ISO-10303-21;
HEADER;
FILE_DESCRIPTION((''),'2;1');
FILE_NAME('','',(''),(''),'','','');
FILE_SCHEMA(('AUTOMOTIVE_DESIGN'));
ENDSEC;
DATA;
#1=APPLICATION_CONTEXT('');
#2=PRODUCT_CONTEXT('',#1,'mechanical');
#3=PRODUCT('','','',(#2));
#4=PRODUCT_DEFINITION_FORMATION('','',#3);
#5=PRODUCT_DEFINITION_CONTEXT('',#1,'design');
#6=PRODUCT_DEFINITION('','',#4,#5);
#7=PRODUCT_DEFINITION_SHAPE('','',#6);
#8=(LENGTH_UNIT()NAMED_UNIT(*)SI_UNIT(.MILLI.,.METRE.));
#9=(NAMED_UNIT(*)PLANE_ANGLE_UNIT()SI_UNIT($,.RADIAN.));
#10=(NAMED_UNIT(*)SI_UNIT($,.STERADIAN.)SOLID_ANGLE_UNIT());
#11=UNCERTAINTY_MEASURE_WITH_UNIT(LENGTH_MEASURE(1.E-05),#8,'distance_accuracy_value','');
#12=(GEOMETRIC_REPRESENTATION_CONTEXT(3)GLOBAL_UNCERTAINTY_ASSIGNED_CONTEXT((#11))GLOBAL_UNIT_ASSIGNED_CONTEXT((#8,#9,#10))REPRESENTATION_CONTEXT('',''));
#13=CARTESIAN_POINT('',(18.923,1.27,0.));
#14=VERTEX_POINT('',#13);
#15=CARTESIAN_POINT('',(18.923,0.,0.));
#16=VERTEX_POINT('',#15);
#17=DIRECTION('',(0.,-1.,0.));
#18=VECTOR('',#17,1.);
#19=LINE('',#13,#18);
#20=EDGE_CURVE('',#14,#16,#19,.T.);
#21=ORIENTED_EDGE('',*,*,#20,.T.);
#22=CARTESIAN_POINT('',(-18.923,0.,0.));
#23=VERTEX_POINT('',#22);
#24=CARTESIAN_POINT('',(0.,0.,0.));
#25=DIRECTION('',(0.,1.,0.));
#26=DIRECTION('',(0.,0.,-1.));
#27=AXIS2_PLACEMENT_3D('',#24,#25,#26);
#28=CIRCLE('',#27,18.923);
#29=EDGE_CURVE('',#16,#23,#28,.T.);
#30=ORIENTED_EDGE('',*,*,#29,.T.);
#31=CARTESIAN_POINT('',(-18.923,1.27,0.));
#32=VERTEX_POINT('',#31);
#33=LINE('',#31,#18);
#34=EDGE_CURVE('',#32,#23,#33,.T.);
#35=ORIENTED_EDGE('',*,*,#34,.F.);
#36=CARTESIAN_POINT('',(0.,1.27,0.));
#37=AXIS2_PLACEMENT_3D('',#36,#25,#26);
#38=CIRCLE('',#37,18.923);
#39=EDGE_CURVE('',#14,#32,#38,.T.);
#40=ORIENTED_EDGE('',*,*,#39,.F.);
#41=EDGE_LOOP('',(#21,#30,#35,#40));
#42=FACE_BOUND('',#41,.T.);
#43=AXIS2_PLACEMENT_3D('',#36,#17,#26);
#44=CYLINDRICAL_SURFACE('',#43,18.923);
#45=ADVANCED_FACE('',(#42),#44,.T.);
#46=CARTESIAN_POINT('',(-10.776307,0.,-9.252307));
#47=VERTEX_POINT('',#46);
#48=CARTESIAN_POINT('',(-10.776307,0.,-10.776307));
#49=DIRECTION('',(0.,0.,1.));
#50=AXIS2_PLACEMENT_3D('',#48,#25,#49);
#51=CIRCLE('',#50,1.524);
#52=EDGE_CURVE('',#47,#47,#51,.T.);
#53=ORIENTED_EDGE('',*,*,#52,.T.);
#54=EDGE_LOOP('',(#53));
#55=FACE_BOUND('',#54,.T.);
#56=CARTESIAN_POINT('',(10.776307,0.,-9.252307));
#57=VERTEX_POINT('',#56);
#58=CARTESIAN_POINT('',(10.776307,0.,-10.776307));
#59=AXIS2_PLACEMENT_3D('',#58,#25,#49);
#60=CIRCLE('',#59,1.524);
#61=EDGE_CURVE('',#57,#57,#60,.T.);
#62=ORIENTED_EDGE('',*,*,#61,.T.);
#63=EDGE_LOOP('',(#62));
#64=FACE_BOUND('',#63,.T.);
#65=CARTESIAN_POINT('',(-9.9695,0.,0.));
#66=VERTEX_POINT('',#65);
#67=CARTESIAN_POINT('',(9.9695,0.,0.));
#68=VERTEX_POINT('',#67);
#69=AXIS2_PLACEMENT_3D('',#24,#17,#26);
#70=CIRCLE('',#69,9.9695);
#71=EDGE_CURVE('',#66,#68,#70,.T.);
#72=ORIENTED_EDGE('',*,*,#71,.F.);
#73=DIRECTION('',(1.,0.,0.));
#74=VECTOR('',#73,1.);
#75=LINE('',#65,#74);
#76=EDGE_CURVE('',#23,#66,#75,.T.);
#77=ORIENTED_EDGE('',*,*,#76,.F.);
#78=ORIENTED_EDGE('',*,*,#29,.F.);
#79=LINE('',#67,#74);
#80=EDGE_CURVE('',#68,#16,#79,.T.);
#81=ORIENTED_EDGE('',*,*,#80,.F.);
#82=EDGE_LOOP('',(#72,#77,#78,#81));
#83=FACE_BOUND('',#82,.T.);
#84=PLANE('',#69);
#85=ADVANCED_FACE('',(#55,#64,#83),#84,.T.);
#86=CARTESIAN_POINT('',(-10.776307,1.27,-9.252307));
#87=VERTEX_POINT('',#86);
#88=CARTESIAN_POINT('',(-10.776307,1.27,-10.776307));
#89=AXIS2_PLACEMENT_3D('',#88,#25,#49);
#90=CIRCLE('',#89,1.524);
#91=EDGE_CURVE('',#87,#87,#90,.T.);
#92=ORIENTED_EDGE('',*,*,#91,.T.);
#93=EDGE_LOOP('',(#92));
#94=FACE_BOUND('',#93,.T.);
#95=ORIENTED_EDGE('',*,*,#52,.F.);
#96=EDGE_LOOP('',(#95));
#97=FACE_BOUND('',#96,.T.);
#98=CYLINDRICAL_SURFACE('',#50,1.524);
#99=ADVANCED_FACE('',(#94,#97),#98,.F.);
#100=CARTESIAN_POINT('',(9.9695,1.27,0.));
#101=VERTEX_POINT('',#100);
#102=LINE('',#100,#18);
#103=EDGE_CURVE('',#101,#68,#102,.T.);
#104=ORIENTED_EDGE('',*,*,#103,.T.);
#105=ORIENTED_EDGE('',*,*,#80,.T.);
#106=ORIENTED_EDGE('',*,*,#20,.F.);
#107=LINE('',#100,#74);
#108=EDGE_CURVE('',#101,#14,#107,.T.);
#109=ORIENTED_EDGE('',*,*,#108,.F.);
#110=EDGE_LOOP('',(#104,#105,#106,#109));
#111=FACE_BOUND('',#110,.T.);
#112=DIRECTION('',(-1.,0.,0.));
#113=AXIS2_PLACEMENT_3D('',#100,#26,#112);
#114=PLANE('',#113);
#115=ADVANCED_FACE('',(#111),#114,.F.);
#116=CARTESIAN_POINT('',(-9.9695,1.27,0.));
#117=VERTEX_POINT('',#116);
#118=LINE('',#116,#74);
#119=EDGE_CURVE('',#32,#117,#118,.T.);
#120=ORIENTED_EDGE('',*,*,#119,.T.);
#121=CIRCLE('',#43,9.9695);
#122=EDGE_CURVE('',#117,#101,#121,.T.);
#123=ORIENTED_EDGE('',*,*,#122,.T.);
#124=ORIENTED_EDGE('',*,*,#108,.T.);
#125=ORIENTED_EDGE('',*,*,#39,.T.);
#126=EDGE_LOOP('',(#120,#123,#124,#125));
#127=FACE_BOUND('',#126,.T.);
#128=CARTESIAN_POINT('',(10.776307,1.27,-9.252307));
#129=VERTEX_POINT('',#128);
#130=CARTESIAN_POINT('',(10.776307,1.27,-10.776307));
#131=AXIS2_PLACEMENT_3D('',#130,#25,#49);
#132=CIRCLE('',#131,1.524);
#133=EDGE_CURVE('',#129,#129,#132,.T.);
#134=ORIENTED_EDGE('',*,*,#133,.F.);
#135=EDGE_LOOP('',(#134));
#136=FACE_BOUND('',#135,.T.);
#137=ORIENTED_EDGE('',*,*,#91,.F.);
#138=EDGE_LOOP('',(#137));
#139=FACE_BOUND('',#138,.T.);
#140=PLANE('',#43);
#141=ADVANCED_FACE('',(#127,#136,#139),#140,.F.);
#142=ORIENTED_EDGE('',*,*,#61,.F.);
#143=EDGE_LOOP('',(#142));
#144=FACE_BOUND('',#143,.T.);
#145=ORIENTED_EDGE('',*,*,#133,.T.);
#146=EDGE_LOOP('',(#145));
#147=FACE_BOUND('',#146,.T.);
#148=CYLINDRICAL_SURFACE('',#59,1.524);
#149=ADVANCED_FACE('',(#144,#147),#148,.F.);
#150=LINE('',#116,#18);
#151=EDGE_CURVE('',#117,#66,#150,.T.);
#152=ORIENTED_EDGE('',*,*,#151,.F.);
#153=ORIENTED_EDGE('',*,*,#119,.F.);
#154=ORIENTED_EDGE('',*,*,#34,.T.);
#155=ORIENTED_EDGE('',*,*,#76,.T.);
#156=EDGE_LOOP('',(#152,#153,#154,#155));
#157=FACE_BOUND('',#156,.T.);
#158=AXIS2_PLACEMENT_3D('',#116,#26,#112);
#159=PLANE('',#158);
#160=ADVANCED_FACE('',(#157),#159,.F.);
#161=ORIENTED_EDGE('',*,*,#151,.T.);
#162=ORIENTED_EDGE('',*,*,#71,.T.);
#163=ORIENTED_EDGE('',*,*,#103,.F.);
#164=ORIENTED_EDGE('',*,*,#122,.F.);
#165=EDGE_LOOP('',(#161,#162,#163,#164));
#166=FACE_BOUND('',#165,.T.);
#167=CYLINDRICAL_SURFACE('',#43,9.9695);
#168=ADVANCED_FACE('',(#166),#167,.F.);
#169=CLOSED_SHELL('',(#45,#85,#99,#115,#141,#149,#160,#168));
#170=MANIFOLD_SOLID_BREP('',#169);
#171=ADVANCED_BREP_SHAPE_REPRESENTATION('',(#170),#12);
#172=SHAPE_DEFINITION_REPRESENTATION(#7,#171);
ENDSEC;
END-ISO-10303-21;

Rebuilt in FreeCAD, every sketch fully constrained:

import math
import FreeCAD as App
import Part
import Sketcher
Q = App.Units.Quantity

doc = App.newDocument("Part")
body = doc.addObject("PartDesign::Body", "Body")

# Sketch on XZ plane
sketch1 = body.newObject("Sketcher::SketchObject", "Sketch")
sketch1.AttachmentSupport = (doc.getObject("XZ_Plane"), [""])
sketch1.MapMode = "FlatFace"
sketch1.addGeometry([
    Part.LineSegment(App.Vector(-19, 0, 0), App.Vector(-10, 0, 0)),
    Part.ArcOfCircle(Part.Circle(App.Vector(0, 0, 0), App.Vector(0, 0, 1), 10), math.radians(180), math.radians(360)),
    Part.LineSegment(App.Vector(10, 0, 0), App.Vector(19, 0, 0)),
    Part.ArcOfCircle(Part.Circle(App.Vector(0, 0, 0), App.Vector(0, 0, 1), 19), math.radians(180), math.radians(360)),
], False)
sketch1.addConstraint([
    Sketcher.Constraint("Coincident", 0, 2, 1, 1),
    Sketcher.Constraint("Coincident", 1, 2, 2, 1),
    Sketcher.Constraint("Coincident", 2, 2, 3, 2),
    Sketcher.Constraint("Coincident", 3, 1, 0, 1),
    Sketcher.Constraint("Horizontal", 0),
    Sketcher.Constraint("Horizontal", 2),
    Sketcher.Constraint("Coincident", 1, 3, -1, 1),
    Sketcher.Constraint("Coincident", 3, 3, -1, 1),
    Sketcher.Constraint("PointOnObject", 0, 2, -1),
    Sketcher.Constraint("PointOnObject", 1, 2, -1),
    Sketcher.Constraint("Radius", 3, Q("0.745 in")),
    Sketcher.Constraint("Radius", 1, Q("0.3925 in")),
])
pad1 = body.newObject("PartDesign::Pad", "Pad")
pad1.Profile = sketch1
pad1.Length = Q("0.05 in")
pad1.Reversed = True

# Sketch on XZ plane
sketch2 = body.newObject("Sketcher::SketchObject", "Sketch001")
sketch2.AttachmentSupport = (doc.getObject("XZ_Plane"), [""])
sketch2.MapMode = "FlatFace"
sketch2.AttachmentOffset = App.Placement(App.Vector(0, 0, -0.05 * 25.4), App.Rotation())
sketch2.addGeometry([
    Part.Circle(App.Vector(-10.8, -10.8, 0), App.Vector(0, 0, 1), 1.5),
    Part.Circle(App.Vector(10.8, -10.8, 0), App.Vector(0, 0, 1), 1.5),
], False)
sketch2.addConstraint([
    Sketcher.Constraint("Equal", 0, 1),
    Sketcher.Constraint("Symmetric", 0, 3, 1, 3, -2),
    Sketcher.Constraint("Diameter", 0, Q("0.12 in")),
    Sketcher.Constraint("DistanceX", 0, 3, -1, 1, 10.776307),
    Sketcher.Constraint("DistanceY", 0, 3, -1, 1, 10.776307),
])
pocket1 = body.newObject("PartDesign::Pocket", "Pocket")
pocket1.Profile = sketch2
pocket1.Type = "ThroughAll"
pocket1.Reversed = True

doc.recompute()
